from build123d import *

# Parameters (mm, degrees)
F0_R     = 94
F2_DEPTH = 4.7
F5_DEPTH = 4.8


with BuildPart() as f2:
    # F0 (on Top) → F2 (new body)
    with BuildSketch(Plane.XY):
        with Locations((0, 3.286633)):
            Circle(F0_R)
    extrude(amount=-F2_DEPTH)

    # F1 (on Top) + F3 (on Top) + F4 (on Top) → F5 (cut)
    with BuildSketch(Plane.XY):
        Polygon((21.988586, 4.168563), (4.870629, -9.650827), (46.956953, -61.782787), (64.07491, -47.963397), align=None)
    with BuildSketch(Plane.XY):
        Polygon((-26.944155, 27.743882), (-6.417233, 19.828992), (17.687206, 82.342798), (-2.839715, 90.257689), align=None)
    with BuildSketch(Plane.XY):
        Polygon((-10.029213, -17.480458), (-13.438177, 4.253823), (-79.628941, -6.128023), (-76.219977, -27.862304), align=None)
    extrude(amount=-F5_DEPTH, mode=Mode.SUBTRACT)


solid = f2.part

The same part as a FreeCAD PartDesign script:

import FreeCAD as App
import Part
import Sketcher
from FreeCAD import Vector


def add_polygon(sketch, points):
    """Adds a closed chain of lines whose ends are joined by coincident constraints."""
    first, n = sketch.GeometryCount, len(points)
    for a, b in zip(points, points[1:] + points[:1]):
        sketch.addGeometry(Part.LineSegment(App.Vector(*a, 0), App.Vector(*b, 0)), False)
    for i in range(n):
        sketch.addConstraint(Sketcher.Constraint("Coincident", first + i, 2, first + (i + 1) % n, 1))

doc = App.newDocument("Part")
params = doc.addObject("Spreadsheet::Sheet", "Params")
for row, (alias, value) in enumerate([
    ("sketch1_diameter", "188 mm"),
    ("pad1_length", "4.7 mm"),
    ("sketch2_length", "22 mm"),
    ("sketch2_length2", "66.999999 mm"),
    ("pocket1_length", "4.8 mm"),
], start=1):
    params.set(f"A{row}", alias)
    params.set(f"B{row}", "=" + value)
    params.setAlias(f"B{row}", alias)

body = doc.addObject("PartDesign::Body", "Body")

sketch1 = body.newObject("Sketcher::SketchObject", "Sketch")
sketch1.AttachmentSupport = (doc.getObject("XY_Plane"), [""])
sketch1.MapMode = "FlatFace"
sketch1.addGeometry(Part.Circle(Vector(0, 3, 0), Vector(0, 0, 1), 94), False)
sketch1.addConstraint([
    Sketcher.Constraint("PointOnObject", 0, 3, -2),
    Sketcher.Constraint("Diameter", 0, 188.0),
    Sketcher.Constraint("DistanceY", -1, 1, 0, 3, 3.286633),
])
sketch1.setExpression("Constraints[1]", "Params.sketch1_diameter")
pad1 = body.newObject("PartDesign::Pad", "Pad")
pad1.Profile = sketch1
pad1.setExpression("Length", "Params.pad1_length")
pad1.Reversed = True

sketch2 = body.newObject("Sketcher::SketchObject", "Sketch001")
sketch2.AttachmentSupport = (doc.getObject("XY_Plane"), [""])
sketch2.MapMode = "FlatFace"
add_polygon(sketch2, [(22, 4), (5, -10), (47, -62), (64, -48)])
add_polygon(sketch2, [(-27, 28), (-6, 20), (18, 82), (-3, 90)])
add_polygon(sketch2, [(-10, -17), (-13, 4), (-80, -6), (-76, -28)])
sketch2.addConstraint([
    Sketcher.Constraint("Perpendicular", 0, 1),
    Sketcher.Constraint("Perpendicular", 1, 2),
    Sketcher.Constraint("Perpendicular", 2, 3),
    Sketcher.Constraint("Perpendicular", 4, 5),
    Sketcher.Constraint("Perpendicular", 5, 6),
    Sketcher.Constraint("Perpendicular", 6, 7),
    Sketcher.Constraint("Perpendicular", 8, 9),
    Sketcher.Constraint("Perpendicular", 9, 10),
    Sketcher.Constraint("Perpendicular", 10, 11),
    Sketcher.Constraint("Equal", 2, 4),
    Sketcher.Constraint("Equal", 3, 5),
    Sketcher.Constraint("Equal", 6, 8),
    Sketcher.Constraint("Equal", 7, 9),
    Sketcher.Constraint("Distance", 0, 22.0),
    Sketcher.Constraint("Distance", 1, 66.999999),
    Sketcher.Constraint("DistanceY", -1, 1, 5, 2, 82.342798),
    Sketcher.Constraint("DistanceX", 6, 2, 3, 2, 24.828301),
    Sketcher.Constraint("DistanceX", 10, 2, 8, 2, 62.7818),
    Sketcher.Constraint("DistanceX", 11, 2, 3, 2, 32.017799),
    Sketcher.Constraint("DistanceX", -1, 1, 0, 2, 4.870629),
    Sketcher.Constraint("DistanceX", -1, 1, 2, 2, 64.07491),
    Sketcher.Constraint("DistanceY", -1, 1, 4, 2, 19.828992),
    Sketcher.Constraint("DistanceY", 0, 2, 4, 2, 29.479819),
    Sketcher.Constraint("DistanceY", 8, 2, 4, 2, 15.575169),
])
sketch2.setExpression("Constraints[25]", "Params.sketch2_length")
sketch2.setExpression("Constraints[26]", "Params.sketch2_length2")
pocket1 = body.newObject("PartDesign::Pocket", "Pocket")
pocket1.Profile = sketch2
pocket1.setExpression("Length", "Params.pocket1_length")

doc.recompute()
